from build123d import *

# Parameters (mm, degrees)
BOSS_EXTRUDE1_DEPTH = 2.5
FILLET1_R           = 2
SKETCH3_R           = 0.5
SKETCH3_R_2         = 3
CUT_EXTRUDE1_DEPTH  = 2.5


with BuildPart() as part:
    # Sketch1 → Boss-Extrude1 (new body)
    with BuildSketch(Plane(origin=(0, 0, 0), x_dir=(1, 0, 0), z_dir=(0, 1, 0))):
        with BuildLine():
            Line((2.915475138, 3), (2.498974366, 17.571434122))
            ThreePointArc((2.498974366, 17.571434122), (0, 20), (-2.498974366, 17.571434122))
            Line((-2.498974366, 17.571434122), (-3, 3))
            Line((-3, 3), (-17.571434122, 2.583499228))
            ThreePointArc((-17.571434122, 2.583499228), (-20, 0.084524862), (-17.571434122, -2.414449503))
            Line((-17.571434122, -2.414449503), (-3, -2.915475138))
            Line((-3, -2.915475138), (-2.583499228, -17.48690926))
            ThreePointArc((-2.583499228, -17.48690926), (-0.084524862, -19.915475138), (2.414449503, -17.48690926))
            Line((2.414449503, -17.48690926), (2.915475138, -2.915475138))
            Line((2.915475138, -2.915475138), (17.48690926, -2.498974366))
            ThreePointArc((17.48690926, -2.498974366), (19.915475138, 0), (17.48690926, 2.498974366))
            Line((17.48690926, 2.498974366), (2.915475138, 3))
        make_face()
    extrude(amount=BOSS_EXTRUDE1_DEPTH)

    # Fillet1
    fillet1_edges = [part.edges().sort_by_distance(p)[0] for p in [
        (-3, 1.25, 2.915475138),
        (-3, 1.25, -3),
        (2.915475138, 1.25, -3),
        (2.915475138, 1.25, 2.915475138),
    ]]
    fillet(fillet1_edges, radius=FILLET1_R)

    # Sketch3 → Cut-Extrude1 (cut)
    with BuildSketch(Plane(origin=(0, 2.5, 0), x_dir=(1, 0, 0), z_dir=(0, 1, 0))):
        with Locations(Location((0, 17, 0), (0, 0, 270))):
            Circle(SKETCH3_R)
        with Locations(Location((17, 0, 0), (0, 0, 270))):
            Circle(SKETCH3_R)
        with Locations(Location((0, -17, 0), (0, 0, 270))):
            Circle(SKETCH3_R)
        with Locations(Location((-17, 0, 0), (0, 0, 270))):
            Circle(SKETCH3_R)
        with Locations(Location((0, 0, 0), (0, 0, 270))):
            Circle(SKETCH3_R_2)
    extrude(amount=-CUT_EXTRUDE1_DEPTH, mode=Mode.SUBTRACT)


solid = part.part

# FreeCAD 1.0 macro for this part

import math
import FreeCAD as App
import Part
import Sketcher

V = App.Vector
Q = App.Units.Quantity


def edges_at(feature, points):
    """Names of the edges that pass closest to the given points."""
    edges = feature.Shape.Edges
    near = lambda p: min(range(len(edges)), key=lambda i: edges[i].distToShape(Part.Vertex(*p))[0])
    return sorted({f"Edge{near(p) + 1}" for p in points})

doc = App.newDocument("Part")
body = doc.addObject("PartDesign::Body", "Body")

# Sketch on XZ plane
sketch1 = doc.addObject("Sketcher::SketchObject", "Sketch")
body.addObject(sketch1)
sketch1.AttachmentSupport = (doc.XZ_Plane, [""])
sketch1.MapMode = "FlatFace"
sketch1.addGeometry([
    Part.LineSegment(V(2.9, -3, 0), V(2.5, -17.6, 0)),  # 0
    Part.ArcOfCircle(Part.Circle(V(0, -17.5, 0), V(0, 0, 1), 2.5), math.radians(-178), math.radians(-2)),  # 1
    Part.LineSegment(V(-2.5, -17.6, 0), V(-3, -3, 0)),  # 2
    Part.LineSegment(V(-3, -3, 0), V(-17.6, -2.6, 0)),  # 3
    Part.ArcOfCircle(Part.Circle(V(-17.5, -0.1, 0), V(0, 0, 1), 2.5), math.radians(92), math.radians(268)),  # 4
    Part.LineSegment(V(-17.6, 2.4, 0), V(-3, 2.9, 0)),  # 5
    Part.LineSegment(V(-3, 2.9, 0), V(-2.6, 17.5, 0)),  # 6
    Part.ArcOfCircle(Part.Circle(V(-0.1, 17.4, 0), V(0, 0, 1), 2.5), math.radians(2), math.radians(178)),  # 7
    Part.LineSegment(V(2.4, 17.5, 0), V(2.9, 2.9, 0)),  # 8
    Part.LineSegment(V(2.9, 2.9, 0), V(17.5, 2.5, 0)),  # 9
    Part.ArcOfCircle(Part.Circle(V(17.4, 0, 0), V(0, 0, 1), 2.5), math.radians(-88), math.radians(88)),  # 10
    Part.LineSegment(V(17.5, -2.5, 0), V(2.9, -3, 0)),  # 11
], False)
sketch1.addConstraint([
    Sketcher.Constraint("Tangent", 0, 2, 1, 2),
    Sketcher.Constraint("Coincident", 1, 1, 2, 1),
    Sketcher.Constraint("Coincident", 2, 2, 3, 1),
    Sketcher.Constraint("Tangent", 3, 2, 4, 2),
    Sketcher.Constraint("Coincident", 4, 1, 5, 1),
    Sketcher.Constraint("Coincident", 5, 2, 6, 1),
    Sketcher.Constraint("Tangent", 6, 2, 7, 2),
    Sketcher.Constraint("Coincident", 7, 1, 8, 1),
    Sketcher.Constraint("Coincident", 8, 2, 9, 1),
    Sketcher.Constraint("Tangent", 9, 2, 10, 2),
    Sketcher.Constraint("Coincident", 10, 1, 11, 1),
    Sketcher.Constraint("Coincident", 11, 2, 0, 1),
    Sketcher.Constraint("Equal", 1, 4),
    Sketcher.Constraint("Equal", 4, 7),
    Sketcher.Constraint("Equal", 7, 10),
    Sketcher.Constraint("Symmetric", 0, 2, 1, 1, -2),
    Sketcher.Constraint("Symmetric", 9, 2, 10, 1, -1),
    Sketcher.Constraint("Perpendicular", 0, 3),
    Sketcher.Constraint("Perpendicular", 2, 5),
    Sketcher.Constraint("Perpendicular", 3, 6),
    Sketcher.Constraint("Perpendicular", 5, 8),
    Sketcher.Constraint("Perpendicular", 6, 9),
    Sketcher.Constraint("Perpendicular", 8, 11),
    Sketcher.Constraint("Horizontal", 6, 2, 7, 1),
    Sketcher.Constraint("Horizontal", 5, 2, 8, 2),
    Sketcher.Constraint("Horizontal", 2, 2, 11, 2),
    Sketcher.Constraint("Vertical", 3, 2, 4, 1),
    Sketcher.Constraint("Vertical", 2, 2, 5, 2),
    Sketcher.Constraint("Vertical", 8, 2, 11, 2),
    Sketcher.Constraint("Equal", 0, 3),
    Sketcher.Constraint("DistanceX", 2, 2, -1, 1, Q("3 mm")),
    Sketcher.Constraint("Radius", 1, Q("2.499995 mm")),
    Sketcher.Constraint("DistanceY", 3, 2, -1, 1, Q("2.583499 mm")),
    Sketcher.Constraint("DistanceY", -1, 1, 7, 3, Q("17.41548 mm")),
])
pad1 = doc.addObject("PartDesign::Pad", "Pad")
body.addObject(pad1)
pad1.Profile = sketch1
pad1.Length = 2.5
pad1.Reversed = True
doc.recompute()

fillet = doc.addObject("PartDesign::Fillet", "Fillet")
body.addObject(fillet)
fillet.Base = (pad1, edges_at(pad1, [
    (-3, 1.25, 2.915),
    (-3, 1.25, -3),
    (2.915, 1.25, -3),
    (2.915, 1.25, 2.915),
]))
fillet.Radius = 2

# Sketch on XZ plane
sketch2 = doc.addObject("Sketcher::SketchObject", "Sketch001")
body.addObject(sketch2)
sketch2.AttachmentSupport = (doc.XZ_Plane, [""])
sketch2.MapMode = "FlatFace"
sketch2.AttachmentOffset = App.Placement(V(0, 0, -2.5), App.Rotation())
sketch2.addGeometry([
    Part.Circle(V(0, -17, 0), V(0, 0, 1), 0.5),  # 0
    Part.Circle(V(17, 0, 0), V(0, 0, 1), 0.5),  # 1
    Part.Circle(V(0, 17, 0), V(0, 0, 1), 0.5),  # 2
    Part.Circle(V(-17, 0, 0), V(0, 0, 1), 0.5),  # 3
    Part.Circle(V(0, 0, 0), V(0, 0, 1), 3),  # 4
], False)
sketch2.addConstraint([
    Sketcher.Constraint("Coincident", 4, 3, -1, 1),
    Sketcher.Constraint("Equal", 0, 1),
    Sketcher.Constraint("Equal", 1, 2),
    Sketcher.Constraint("Equal", 2, 3),
    Sketcher.Constraint("Symmetric", 0, 3, 2, 3, -1, 1),
    Sketcher.Constraint("Symmetric", 1, 3, 3, 3, -1, 1),
    Sketcher.Constraint("PointOnObject", 0, 3, -2),
    Sketcher.Constraint("PointOnObject", 1, 3, -1),
    Sketcher.Constraint("Diameter", 0, Q("1 mm")),
    Sketcher.Constraint("Diameter", 4, Q("6 mm")),
    Sketcher.Constraint("DistanceY", 0, 3, -1, 1, Q("17 mm")),
    Sketcher.Constraint("DistanceX", -1, 1, 1, 3, Q("17 mm")),
])
pocket1 = doc.addObject("PartDesign::Pocket", "Pocket")
body.addObject(pocket1)
pocket1.Profile = sketch2
pocket1.Length = 2.5
pocket1.Reversed = True

doc.recompute()
